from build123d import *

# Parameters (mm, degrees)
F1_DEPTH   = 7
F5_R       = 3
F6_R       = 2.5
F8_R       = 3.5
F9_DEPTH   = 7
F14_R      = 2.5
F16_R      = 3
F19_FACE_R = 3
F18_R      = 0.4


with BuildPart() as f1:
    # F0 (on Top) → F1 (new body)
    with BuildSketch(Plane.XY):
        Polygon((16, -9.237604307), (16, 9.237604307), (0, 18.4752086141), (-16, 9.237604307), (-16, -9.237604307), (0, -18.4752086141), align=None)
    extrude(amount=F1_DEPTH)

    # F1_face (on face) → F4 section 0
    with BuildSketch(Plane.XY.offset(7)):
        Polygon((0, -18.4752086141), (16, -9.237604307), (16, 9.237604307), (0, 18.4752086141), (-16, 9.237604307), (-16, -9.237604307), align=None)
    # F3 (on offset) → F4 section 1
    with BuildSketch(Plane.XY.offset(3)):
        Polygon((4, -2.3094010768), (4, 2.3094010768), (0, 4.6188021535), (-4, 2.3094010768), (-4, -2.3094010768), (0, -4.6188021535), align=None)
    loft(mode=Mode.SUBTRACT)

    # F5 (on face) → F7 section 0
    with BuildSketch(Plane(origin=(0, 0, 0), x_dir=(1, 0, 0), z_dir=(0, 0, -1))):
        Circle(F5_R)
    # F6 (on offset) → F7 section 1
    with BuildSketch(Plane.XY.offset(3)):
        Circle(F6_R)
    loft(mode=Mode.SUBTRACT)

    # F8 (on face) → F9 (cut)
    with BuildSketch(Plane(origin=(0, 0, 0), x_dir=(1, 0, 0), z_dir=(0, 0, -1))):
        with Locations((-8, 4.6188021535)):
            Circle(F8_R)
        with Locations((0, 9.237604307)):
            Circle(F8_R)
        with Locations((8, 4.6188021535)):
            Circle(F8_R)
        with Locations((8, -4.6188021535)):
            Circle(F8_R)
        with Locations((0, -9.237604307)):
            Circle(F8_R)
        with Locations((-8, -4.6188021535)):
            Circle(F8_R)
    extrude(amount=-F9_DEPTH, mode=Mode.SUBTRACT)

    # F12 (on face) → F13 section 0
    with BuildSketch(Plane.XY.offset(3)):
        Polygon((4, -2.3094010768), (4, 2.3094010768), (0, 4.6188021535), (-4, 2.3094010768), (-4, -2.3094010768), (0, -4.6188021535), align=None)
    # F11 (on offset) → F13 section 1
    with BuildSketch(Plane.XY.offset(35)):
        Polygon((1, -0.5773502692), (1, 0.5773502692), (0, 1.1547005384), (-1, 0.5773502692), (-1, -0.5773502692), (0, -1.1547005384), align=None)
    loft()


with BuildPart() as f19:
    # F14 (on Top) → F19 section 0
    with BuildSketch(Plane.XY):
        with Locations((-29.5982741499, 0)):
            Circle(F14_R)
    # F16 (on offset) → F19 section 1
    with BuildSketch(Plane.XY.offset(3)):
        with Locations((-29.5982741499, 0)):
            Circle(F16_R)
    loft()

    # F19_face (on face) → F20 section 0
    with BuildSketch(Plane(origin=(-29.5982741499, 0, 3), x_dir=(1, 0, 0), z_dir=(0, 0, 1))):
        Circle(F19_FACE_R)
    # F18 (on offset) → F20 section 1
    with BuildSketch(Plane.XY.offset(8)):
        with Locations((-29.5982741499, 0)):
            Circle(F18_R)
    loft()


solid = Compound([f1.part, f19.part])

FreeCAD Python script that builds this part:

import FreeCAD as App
import Part
import Sketcher
Q = App.Units.Quantity


def add_polygon(sketch, points):
    """Adds a closed chain of lines whose ends are joined by coincident constraints."""
    first, n = sketch.GeometryCount, len(points)
    for a, b in zip(points, points[1:] + points[:1]):
        sketch.addGeometry(Part.LineSegment(App.Vector(*a, 0), App.Vector(*b, 0)), False)
    for i in range(n):
        sketch.addConstraint(Sketcher.Constraint("Coincident", first + i, 2, first + (i + 1) % n, 1))

doc = App.newDocument("Part")
params = doc.addObject("Spreadsheet::Sheet", "Params")
for row, (alias, value) in enumerate([
    ("pad1_length", "7 mm"),
    ("sketch4_diameter", "6 mm"),
    ("sketch5_diameter", "5 mm"),
    ("sketch6_diameter", "7 mm"),
    ("pocket1_length", "7 mm"),
    ("sketch9_diameter", "5 mm"),
    ("sketch10_diameter", "6 mm"),
    ("sketch11_diameter", "6 mm"),
    ("sketch12_diameter", "0.8 mm"),
], start=1):
    params.set(f"A{row}", alias)
    params.set(f"B{row}", "=" + value)
    params.setAlias(f"B{row}", alias)

body = doc.addObject("PartDesign::Body", "Body")

sketch1 = body.newObject("Sketcher::SketchObject", "Sketch")
sketch1.AttachmentSupport = (doc.getObject("XY_Plane"), [""])
sketch1.MapMode = "FlatFace"
add_polygon(sketch1, [(16, -9), (16, 9), (0, 18), (-16, 9), (-16, -9), (0, -18)])
sketch1.addConstraint([
    Sketcher.Constraint("Vertical", 0),
    Sketcher.Constraint("Vertical", 3),
    Sketcher.Constraint("Symmetric", 0, 2, 3, 2, -1, 1),
    Sketcher.Constraint("Symmetric", 1, 2, 4, 2, -1, 1),
    Sketcher.Constraint("PointOnObject", 1, 2, -2),
    Sketcher.Constraint("Parallel", 2, 5),
    Sketcher.Constraint("Horizontal", 0, 2, 2, 2),
    Sketcher.Constraint("Angle", 1, Q("150 deg")),
    Sketcher.Constraint("DistanceX", -1, 1, 0, 2, Q("16 mm")),
    Sketcher.Constraint("DistanceY", 0, 1, 0, 2, Q("18.475209 mm")),
])
pad1 = body.newObject("PartDesign::Pad", "Pad")
pad1.Profile = sketch1
pad1.setExpression("Length", "Params.pad1_length")

sketch2 = body.newObject("Sketcher::SketchObject", "Sketch001")
sketch2.AttachmentSupport = (doc.getObject("XY_Plane"), [""])
sketch2.MapMode = "FlatFace"
sketch2.AttachmentOffset = App.Placement(App.Vector(0, 0, 7), App.Rotation())
add_polygon(sketch2, [(0, -18), (16, -9), (16, 9), (0, 18), (-16, 9), (-16, -9)])
sketch2.addConstraint([
    Sketcher.Constraint("Vertical", 1),
    Sketcher.Constraint("Vertical", 4),
    Sketcher.Constraint("Symmetric", 0, 2, 3, 2, -1, 1),
    Sketcher.Constraint("Symmetric", 2, 2, 5, 2, -1, 1),
    Sketcher.Constraint("PointOnObject", 2, 2, -2),
    Sketcher.Constraint("Parallel", 2, 5),
    Sketcher.Constraint("Horizontal", 1, 2, 3, 2),
    Sketcher.Constraint("Angle", 0, Q("30 deg")),
    Sketcher.Constraint("DistanceX", -1, 1, 0, 2, Q("16 mm")),
    Sketcher.Constraint("DistanceY", 1, 1, 1, 2, Q("18.475209 mm")),
])

sketch3 = body.newObject("Sketcher::SketchObject", "Sketch002")
sketch3.AttachmentSupport = (doc.getObject("XY_Plane"), [""])
sketch3.MapMode = "FlatFace"
sketch3.AttachmentOffset = App.Placement(App.Vector(0, 0, 3), App.Rotation())
add_polygon(sketch3, [(4, -2.3), (4, 2.3), (0, 4.6), (-4, 2.3), (-4, -2.3), (0, -4.6)])
sketch3.addConstraint([
    Sketcher.Constraint("Vertical", 0),
    Sketcher.Constraint("Vertical", 3),
    Sketcher.Constraint("Symmetric", 0, 2, 3, 2, -1, 1),
    Sketcher.Constraint("Symmetric", 1, 2, 4, 2, -1, 1),
    Sketcher.Constraint("PointOnObject", 1, 2, -2),
    Sketcher.Constraint("Parallel", 2, 5),
    Sketcher.Constraint("Horizontal", 0, 2, 2, 2),
    Sketcher.Constraint("Angle", 1, Q("150 deg")),
    Sketcher.Constraint("DistanceX", -1, 1, 0, 2, Q("4 mm")),
    Sketcher.Constraint("DistanceY", -1, 1, 0, 2, Q("2.309401 mm")),
])

subtractiveloft = body.newObject("PartDesign::SubtractiveLoft", "SubtractiveLoft")
subtractiveloft.Profile = sketch2
subtractiveloft.Sections = [sketch3]

sketch4 = body.newObject("Sketcher::SketchObject", "Sketch003")
sketch4.AttachmentSupport = (doc.getObject("XY_Plane"), [""])
sketch4.MapMode = "FlatFace"
sketch4.addGeometry(Part.Circle(App.Vector(0, 0, 0), App.Vector(0, 0, 1), 3), False)
sketch4.addConstraint([
    Sketcher.Constraint("Coincident", 0, 3, -1, 1),
    Sketcher.Constraint("Diameter", 0, Q("6 mm")),
])
sketch4.setExpression("Constraints[1]", "Params.sketch4_diameter")

sketch5 = body.newObject("Sketcher::SketchObject", "Sketch004")
sketch5.AttachmentSupport = (doc.getObject("XY_Plane"), [""])
sketch5.MapMode = "FlatFace"
sketch5.AttachmentOffset = App.Placement(App.Vector(0, 0, 3), App.Rotation())
sketch5.addGeometry(Part.Circle(App.Vector(0, 0, 0), App.Vector(0, 0, 1), 2.5), False)
sketch5.addConstraint([
    Sketcher.Constraint("Coincident", 0, 3, -1, 1),
    Sketcher.Constraint("Diameter", 0, Q("5 mm")),
])
sketch5.setExpression("Constraints[1]", "Params.sketch5_diameter")

subtractiveloft2 = body.newObject("PartDesign::SubtractiveLoft", "SubtractiveLoft001")
subtractiveloft2.Profile = sketch4
subtractiveloft2.Sections = [sketch5]

sketch6 = body.newObject("Sketcher::SketchObject", "Sketch005")
sketch6.AttachmentSupport = (doc.getObject("XY_Plane"), [""])
sketch6.MapMode = "FlatFace"
sketch6.addGeometry([
    Part.Circle(App.Vector(-8, -4.6, 0), App.Vector(0, 0, 1), 3.5),
    Part.Circle(App.Vector(0, -9.2, 0), App.Vector(0, 0, 1), 3.5),
    Part.Circle(App.Vector(8, -4.6, 0), App.Vector(0, 0, 1), 3.5),
    Part.Circle(App.Vector(8, 4.6, 0), App.Vector(0, 0, 1), 3.5),
    Part.Circle(App.Vector(0, 9.2, 0), App.Vector(0, 0, 1), 3.5),
    Part.Circle(App.Vector(-8, 4.6, 0), App.Vector(0, 0, 1), 3.5),
], False)
sketch6.addConstraint([
    Sketcher.Constraint("Equal", 0, 1),
    Sketcher.Constraint("Equal", 1, 2),
    Sketcher.Constraint("Equal", 2, 3),
    Sketcher.Constraint("Equal", 3, 4),
    Sketcher.Constraint("Equal", 4, 5),
    Sketcher.Constraint("Symmetric", 0, 3, 3, 3, -1, 1),
    Sketcher.Constraint("Symmetric", 1, 3, 4, 3, -1, 1),
    Sketcher.Constraint("Symmetric", 2, 3, 5, 3, -1, 1),
    Sketcher.Constraint("Symmetric", 0, 3, 2, 3, -2),
    Sketcher.Constraint("PointOnObject", 1, 3, -2),
    Sketcher.Constraint("Diameter", 0, Q("7 mm")),
    Sketcher.Constraint("DistanceX", 0, 3, -1, 1, Q("8 mm")),
    Sketcher.Constraint("DistanceY", 1, 3, 4, 3, Q("18.475209 mm")),
    Sketcher.Constraint("DistanceY", 0, 3, -1, 1, Q("4.618802 mm")),
])
sketch6.setExpression("Constraints[10]", "Params.sketch6_diameter")
pocket1 = body.newObject("PartDesign::Pocket", "Pocket")
pocket1.Profile = sketch6
pocket1.setExpression("Length", "Params.pocket1_length")
pocket1.Reversed = True

sketch7 = body.newObject("Sketcher::SketchObject", "Sketch006")
sketch7.AttachmentSupport = (doc.getObject("XY_Plane"), [""])
sketch7.MapMode = "FlatFace"
sketch7.AttachmentOffset = App.Placement(App.Vector(0, 0, 3), App.Rotation())
add_polygon(sketch7, [(4, -2.3), (4, 2.3), (0, 4.6), (-4, 2.3), (-4, -2.3), (0, -4.6)])
sketch7.addConstraint([
    Sketcher.Constraint("Vertical", 0),
    Sketcher.Constraint("Vertical", 3),
    Sketcher.Constraint("Symmetric", 0, 2, 3, 2, -1, 1),
    Sketcher.Constraint("Symmetric", 1, 2, 4, 2, -1, 1),
    Sketcher.Constraint("PointOnObject", 1, 2, -2),
    Sketcher.Constraint("Parallel", 2, 5),
    Sketcher.Constraint("Horizontal", 0, 2, 2, 2),
    Sketcher.Constraint("Angle", 1, Q("150 deg")),
    Sketcher.Constraint("DistanceX", -1, 1, 0, 2, Q("4 mm")),
    Sketcher.Constraint("DistanceY", -1, 1, 0, 2, Q("2.309401 mm")),
])

sketch8 = body.newObject("Sketcher::SketchObject", "Sketch007")
sketch8.AttachmentSupport = (doc.getObject("XY_Plane"), [""])
sketch8.MapMode = "FlatFace"
sketch8.AttachmentOffset = App.Placement(App.Vector(0, 0, 35), App.Rotation())
add_polygon(sketch8, [(1, -0.6), (1, 0.6), (0, 1.2), (-1, 0.6), (-1, -0.6), (0, -1.2)])
sketch8.addConstraint([
    Sketcher.Constraint("Vertical", 0),
    Sketcher.Constraint("Vertical", 3),
    Sketcher.Constraint("Symmetric", 0, 2, 3, 2, -1, 1),
    Sketcher.Constraint("Symmetric", 1, 2, 4, 2, -1, 1),
    Sketcher.Constraint("PointOnObject", 1, 2, -2),
    Sketcher.Constraint("Parallel", 2, 5),
    Sketcher.Constraint("Horizontal", 0, 2, 2, 2),
    Sketcher.Constraint("Angle", 1, Q("150 deg")),
    Sketcher.Constraint("DistanceX", -1, 1, 0, 2, Q("1 mm")),
    Sketcher.Constraint("DistanceY", 0, 1, 0, 2, Q("1.154701 mm")),
])

additiveloft = body.newObject("PartDesign::AdditiveLoft", "AdditiveLoft")
additiveloft.Profile = sketch7
additiveloft.Sections = [sketch8]
body2 = doc.addObject("PartDesign::Body", "Body001")

sketch9 = body2.newObject("Sketcher::SketchObject", "Sketch008")
sketch9.AttachmentSupport = (doc.getObject("XY_Plane001"), [""])
sketch9.MapMode = "FlatFace"
sketch9.addGeometry(Part.Circle(App.Vector(-29.6, 0, 0), App.Vector(0, 0, 1), 2.5), False)
sketch9.addConstraint([
    Sketcher.Constraint("PointOnObject", 0, 3, -1),
    Sketcher.Constraint("Diameter", 0, Q("5 mm")),
    Sketcher.Constraint("DistanceX", 0, 3, -1, 1, Q("29.598274 mm")),
])
sketch9.setExpression("Constraints[1]", "Params.sketch9_diameter")

sketch10 = body2.newObject("Sketcher::SketchObject", "Sketch009")
sketch10.AttachmentSupport = (doc.getObject("XY_Plane001"), [""])
sketch10.MapMode = "FlatFace"
sketch10.AttachmentOffset = App.Placement(App.Vector(0, 0, 3), App.Rotation())
sketch10.addGeometry(Part.Circle(App.Vector(-29.6, 0, 0), App.Vector(0, 0, 1), 3), False)
sketch10.addConstraint([
    Sketcher.Constraint("PointOnObject", 0, 3, -1),
    Sketcher.Constraint("Diameter", 0, Q("6 mm")),
    Sketcher.Constraint("DistanceX", 0, 3, -1, 1, Q("29.598274 mm")),
])
sketch10.setExpression("Constraints[1]", "Params.sketch10_diameter")

additiveloft2 = body2.newObject("PartDesign::AdditiveLoft", "AdditiveLoft001")
additiveloft2.Profile = sketch9
additiveloft2.Sections = [sketch10]

sketch11 = body2.newObject("Sketcher::SketchObject", "Sketch010")
sketch11.AttachmentSupport = (doc.getObject("XY_Plane001"), [""])
sketch11.MapMode = "FlatFace"
sketch11.AttachmentOffset = App.Placement(App.Vector(0, 0, 3), App.Rotation())
sketch11.addGeometry(Part.Circle(App.Vector(-29.6, 0, 0), App.Vector(0, 0, 1), 3), False)
sketch11.addConstraint([
    Sketcher.Constraint("PointOnObject", 0, 3, -1),
    Sketcher.Constraint("Diameter", 0, Q("6 mm")),
    Sketcher.Constraint("DistanceX", 0, 3, -1, 1, Q("29.598274 mm")),
])
sketch11.setExpression("Constraints[1]", "Params.sketch11_diameter")

sketch12 = body2.newObject("Sketcher::SketchObject", "Sketch011")
sketch12.AttachmentSupport = (doc.getObject("XY_Plane001"), [""])
sketch12.MapMode = "FlatFace"
sketch12.AttachmentOffset = App.Placement(App.Vector(0, 0, 8), App.Rotation())
sketch12.addGeometry(Part.Circle(App.Vector(-29.6, 0, 0), App.Vector(0, 0, 1), 0.4), False)
sketch12.addConstraint([
    Sketcher.Constraint("PointOnObject", 0, 3, -1),
    Sketcher.Constraint("Diameter", 0, Q("0.8 mm")),
    Sketcher.Constraint("DistanceX", 0, 3, -1, 1, Q("29.598274 mm")),
])
sketch12.setExpression("Constraints[1]", "Params.sketch12_diameter")

additiveloft3 = body2.newObject("PartDesign::AdditiveLoft", "AdditiveLoft002")
additiveloft3.Profile = sketch11
additiveloft3.Sections = [sketch12]

doc.recompute()
